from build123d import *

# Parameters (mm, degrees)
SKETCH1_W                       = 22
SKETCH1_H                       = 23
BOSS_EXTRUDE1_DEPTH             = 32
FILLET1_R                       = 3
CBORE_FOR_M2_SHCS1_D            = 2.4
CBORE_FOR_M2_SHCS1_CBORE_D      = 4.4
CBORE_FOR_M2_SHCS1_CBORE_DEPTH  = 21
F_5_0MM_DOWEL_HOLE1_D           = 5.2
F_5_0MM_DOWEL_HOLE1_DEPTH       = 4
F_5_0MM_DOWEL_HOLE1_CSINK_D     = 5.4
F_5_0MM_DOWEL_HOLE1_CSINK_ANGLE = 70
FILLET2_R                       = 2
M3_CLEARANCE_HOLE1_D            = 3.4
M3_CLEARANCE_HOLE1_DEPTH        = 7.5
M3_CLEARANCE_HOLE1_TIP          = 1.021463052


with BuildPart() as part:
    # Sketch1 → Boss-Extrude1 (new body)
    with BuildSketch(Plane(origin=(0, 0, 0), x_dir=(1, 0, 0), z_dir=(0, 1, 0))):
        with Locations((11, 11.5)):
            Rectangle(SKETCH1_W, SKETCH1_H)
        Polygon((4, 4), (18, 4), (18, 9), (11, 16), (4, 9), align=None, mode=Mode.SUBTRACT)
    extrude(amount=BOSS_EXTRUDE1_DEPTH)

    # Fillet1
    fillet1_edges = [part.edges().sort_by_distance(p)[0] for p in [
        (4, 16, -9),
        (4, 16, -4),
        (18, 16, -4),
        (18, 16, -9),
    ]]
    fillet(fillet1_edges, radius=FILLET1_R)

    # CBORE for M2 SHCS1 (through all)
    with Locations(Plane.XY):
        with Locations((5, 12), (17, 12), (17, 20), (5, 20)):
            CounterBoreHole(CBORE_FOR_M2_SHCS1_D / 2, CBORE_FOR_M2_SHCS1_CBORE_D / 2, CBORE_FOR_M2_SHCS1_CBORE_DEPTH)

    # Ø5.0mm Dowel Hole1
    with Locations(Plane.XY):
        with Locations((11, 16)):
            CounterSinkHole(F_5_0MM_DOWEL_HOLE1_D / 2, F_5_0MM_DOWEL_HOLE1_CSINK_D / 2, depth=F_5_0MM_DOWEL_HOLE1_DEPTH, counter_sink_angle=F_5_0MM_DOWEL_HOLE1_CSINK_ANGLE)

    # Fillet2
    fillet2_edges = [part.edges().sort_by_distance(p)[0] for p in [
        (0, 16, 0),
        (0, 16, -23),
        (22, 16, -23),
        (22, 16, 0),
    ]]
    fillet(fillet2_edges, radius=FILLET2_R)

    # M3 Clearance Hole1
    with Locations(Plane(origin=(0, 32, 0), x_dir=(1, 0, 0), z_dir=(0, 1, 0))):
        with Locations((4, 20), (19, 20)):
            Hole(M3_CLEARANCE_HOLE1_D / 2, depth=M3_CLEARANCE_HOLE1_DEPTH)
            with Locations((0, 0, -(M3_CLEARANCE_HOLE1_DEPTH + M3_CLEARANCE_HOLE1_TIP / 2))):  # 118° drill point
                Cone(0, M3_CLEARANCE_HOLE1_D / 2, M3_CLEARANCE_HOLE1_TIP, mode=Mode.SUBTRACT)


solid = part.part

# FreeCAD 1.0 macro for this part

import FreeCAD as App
import Part
import Sketcher


def edges_at(feature, points):
    """Names of the edges that pass closest to the given points."""
    edges = feature.Shape.Edges
    near = lambda p: min(range(len(edges)), key=lambda i: edges[i].distToShape(Part.Vertex(*p))[0])
    return sorted({f"Edge{near(p) + 1}" for p in points})


def add_polygon(sketch, points):
    """Adds a closed chain of lines whose ends are joined by coincident constraints."""
    first, n = sketch.GeometryCount, len(points)
    for a, b in zip(points, points[1:] + points[:1]):
        sketch.addGeometry(Part.LineSegment(App.Vector(*a, 0), App.Vector(*b, 0)), False)
    for i in range(n):
        sketch.addConstraint(Sketcher.Constraint("Coincident", first + i, 2, first + (i + 1) % n, 1))

doc = App.newDocument("Part")
params = doc.addObject("Spreadsheet::Sheet", "Params")
for row, (alias, value) in enumerate([
    ("sketch1_width", "22 mm"),
    ("sketch1_width2", "14 mm"),
    ("sketch1_height", "23 mm"),
    ("sketch1_height2", "5 mm"),
    ("pad1_length", "32 mm"),
    ("fillet_radius", "3 mm"),
    ("sketch2_diameter", "2.4 mm"),
    ("hole_diameter", "2.4 mm"),
    ("hole_cbore_diameter", "4.4 mm"),
    ("hole_cbore_depth", "21 mm"),
    ("sketch3_diameter", "5.2 mm"),
    ("hole2_diameter", "5.2 mm"),
    ("hole2_depth", "4 mm"),
    ("hole2_csink_diameter", "5.4 mm"),
    ("fillet2_radius", "2 mm"),
    ("sketch4_diameter", "3.4 mm"),
    ("hole3_diameter", "3.4 mm"),
    ("hole3_depth", "7.5 mm"),
], start=1):
    params.set(f"A{row}", alias)
    params.set(f"B{row}", "=" + value)
    params.setAlias(f"B{row}", alias)

body = doc.addObject("PartDesign::Body", "Body")

# Sketch on XZ plane
sketch1 = body.newObject("Sketcher::SketchObject", "Sketch")
sketch1.AttachmentSupport = (doc.getObject("XZ_Plane"), [""])
sketch1.MapMode = "FlatFace"
add_polygon(sketch1, [(0, -23), (0, 0), (22, 0), (22, -23)])  # lines 0-3
add_polygon(sketch1, [(18, -4), (4, -4), (4, -9), (11, -16), (18, -9)])  # lines 4-8
sketch1.addConstraint([
    Sketcher.Constraint("Vertical", 0),
    Sketcher.Constraint("Horizontal", 1),
    Sketcher.Constraint("Vertical", 2),
    Sketcher.Constraint("Horizontal", 3),
    Sketcher.Constraint("Horizontal", 4),
    Sketcher.Constraint("Vertical", 5),
    Sketcher.Constraint("Vertical", 8),
    Sketcher.Constraint("Coincident", 0, 2, -1, 1),
    Sketcher.Constraint("Perpendicular", 6, 7),
    Sketcher.Constraint("Horizontal", 5, 2, 7, 2),
    Sketcher.Constraint("Equal", 6, 7),
    Sketcher.Constraint("DistanceX", 1, 1, 1, 2, 22.0),
    Sketcher.Constraint("DistanceX", 4, 2, 4, 1, 14.0),
    Sketcher.Constraint("DistanceY", 0, 1, 0, 2, 23.0),
    Sketcher.Constraint("DistanceY", 5, 2, 5, 1, 5.0),
    Sketcher.Constraint("DistanceX", -1, 1, 4, 2, 4.0),
    Sketcher.Constraint("DistanceY", 4, 2, -1, 1, 4.0),
])
sketch1.setExpression("Constraints[20]", "Params.sketch1_width")
sketch1.setExpression("Constraints[21]", "Params.sketch1_width2")
sketch1.setExpression("Constraints[22]", "Params.sketch1_height")
sketch1.setExpression("Constraints[23]", "Params.sketch1_height2")
pad1 = body.newObject("PartDesign::Pad", "Pad")
pad1.Profile = sketch1
pad1.setExpression("Length", "Params.pad1_length")
pad1.Reversed = True
doc.recompute()

fillet = body.newObject("PartDesign::Fillet", "Fillet")
fillet.Base = (pad1, edges_at(pad1, [
    (4, 16, -9),
    (4, 16, -4),
    (18, 16, -4),
    (18, 16, -9),
]))
fillet.setExpression("Radius", "Params.fillet_radius")

# Sketch on XY plane
sketch2 = body.newObject("Sketcher::SketchObject", "Sketch001")
sketch2.AttachmentSupport = (doc.getObject("XY_Plane"), [""])
sketch2.MapMode = "FlatFace"
sketch2.addGeometry([
    Part.Circle(App.Vector(5, 12, 0), App.Vector(0, 0, 1), 1.2),
    Part.Circle(App.Vector(17, 12, 0), App.Vector(0, 0, 1), 1.2),
    Part.Circle(App.Vector(17, 20, 0), App.Vector(0, 0, 1), 1.2),
    Part.Circle(App.Vector(5, 20, 0), App.Vector(0, 0, 1), 1.2),
], False)
sketch2.addConstraint([
    Sketcher.Constraint("Equal", 0, 1),
    Sketcher.Constraint("Equal", 1, 2),
    Sketcher.Constraint("Equal", 2, 3),
    Sketcher.Constraint("Horizontal", 0, 3, 1, 3),
    Sketcher.Constraint("Horizontal", 2, 3, 3, 3),
    Sketcher.Constraint("Vertical", 1, 3, 2, 3),
    Sketcher.Constraint("Vertical", 0, 3, 3, 3),
    Sketcher.Constraint("Diameter", 0, 2.4),
    Sketcher.Constraint("DistanceX", -1, 1, 0, 3, 5.0),
    Sketcher.Constraint("DistanceY", -1, 1, 0, 3, 12.0),
    Sketcher.Constraint("DistanceX", -1, 1, 1, 3, 17.0),
    Sketcher.Constraint("DistanceY", -1, 1, 2, 3, 20.0),
])
sketch2.setExpression("Constraints[7]", "Params.sketch2_diameter")
doc.recompute()
hole = body.newObject("PartDesign::Hole", "Hole")
hole.Profile = sketch2
hole.ThreadType = "None"
hole.setExpression("Diameter", "Params.hole_diameter")
hole.DepthType = "ThroughAll"
hole.HoleCutType = "Counterbore"
hole.setExpression("HoleCutDiameter", "Params.hole_cbore_diameter")
hole.setExpression("HoleCutDepth", "Params.hole_cbore_depth")

# Sketch on XY plane
sketch3 = body.newObject("Sketcher::SketchObject", "Sketch002")
sketch3.AttachmentSupport = (doc.getObject("XY_Plane"), [""])
sketch3.MapMode = "FlatFace"
sketch3.addGeometry(Part.Circle(App.Vector(11, 16, 0), App.Vector(0, 0, 1), 2.6), False)
sketch3.addConstraint([
    Sketcher.Constraint("Diameter", 0, 5.2),
    Sketcher.Constraint("DistanceX", -1, 1, 0, 3, 11.0),
    Sketcher.Constraint("DistanceY", -1, 1, 0, 3, 16.0),
])
sketch3.setExpression("Constraints[0]", "Params.sketch3_diameter")
doc.recompute()
hole2 = body.newObject("PartDesign::Hole", "Hole001")
hole2.Profile = sketch3
hole2.ThreadType = "None"
hole2.setExpression("Diameter", "Params.hole2_diameter")
hole2.DepthType = "Dimension"
hole2.setExpression("Depth", "Params.hole2_depth")
hole2.DrillPoint = "Flat"
hole2.HoleCutType = "Countersink"
hole2.setExpression("HoleCutDiameter", "Params.hole2_csink_diameter")
hole2.HoleCutCountersinkAngle = 70
doc.recompute()

fillet2 = body.newObject("PartDesign::Fillet", "Fillet001")
fillet2.Base = (hole2, edges_at(hole2, [
    (0, 16, 0),
    (0, 16, -23),
    (22, 16, -23),
    (22, 16, 0),
]))
fillet2.setExpression("Radius", "Params.fillet2_radius")

# Sketch on XZ plane
sketch4 = body.newObject("Sketcher::SketchObject", "Sketch003")
sketch4.AttachmentSupport = (doc.getObject("XZ_Plane"), [""])
sketch4.MapMode = "FlatFace"
sketch4.AttachmentOffset = App.Placement(App.Vector(0, 0, -32), App.Rotation())
sketch4.addGeometry([
    Part.Circle(App.Vector(4, -20, 0), App.Vector(0, 0, 1), 1.7),
    Part.Circle(App.Vector(19, -20, 0), App.Vector(0, 0, 1), 1.7),
], False)
sketch4.addConstraint([
    Sketcher.Constraint("Equal", 0, 1),
    Sketcher.Constraint("Horizontal", 0, 3, 1, 3),
    Sketcher.Constraint("Diameter", 0, 3.4),
    Sketcher.Constraint("DistanceX", -1, 1, 0, 3, 4.0),
    Sketcher.Constraint("DistanceY", 0, 3, -1, 1, 20.0),
    Sketcher.Constraint("DistanceX", -1, 1, 1, 3, 19.0),
])
sketch4.setExpression("Constraints[2]", "Params.sketch4_diameter")
doc.recompute()
hole3 = body.newObject("PartDesign::Hole", "Hole002")
hole3.Profile = sketch4
hole3.ThreadType = "None"
hole3.setExpression("Diameter", "Params.hole3_diameter")
hole3.DepthType = "Dimension"
hole3.setExpression("Depth", "Params.hole3_depth")
hole3.DrillPoint = "Angled"
hole3.DrillPointAngle = 118
hole3.Reversed = True

doc.recompute()
